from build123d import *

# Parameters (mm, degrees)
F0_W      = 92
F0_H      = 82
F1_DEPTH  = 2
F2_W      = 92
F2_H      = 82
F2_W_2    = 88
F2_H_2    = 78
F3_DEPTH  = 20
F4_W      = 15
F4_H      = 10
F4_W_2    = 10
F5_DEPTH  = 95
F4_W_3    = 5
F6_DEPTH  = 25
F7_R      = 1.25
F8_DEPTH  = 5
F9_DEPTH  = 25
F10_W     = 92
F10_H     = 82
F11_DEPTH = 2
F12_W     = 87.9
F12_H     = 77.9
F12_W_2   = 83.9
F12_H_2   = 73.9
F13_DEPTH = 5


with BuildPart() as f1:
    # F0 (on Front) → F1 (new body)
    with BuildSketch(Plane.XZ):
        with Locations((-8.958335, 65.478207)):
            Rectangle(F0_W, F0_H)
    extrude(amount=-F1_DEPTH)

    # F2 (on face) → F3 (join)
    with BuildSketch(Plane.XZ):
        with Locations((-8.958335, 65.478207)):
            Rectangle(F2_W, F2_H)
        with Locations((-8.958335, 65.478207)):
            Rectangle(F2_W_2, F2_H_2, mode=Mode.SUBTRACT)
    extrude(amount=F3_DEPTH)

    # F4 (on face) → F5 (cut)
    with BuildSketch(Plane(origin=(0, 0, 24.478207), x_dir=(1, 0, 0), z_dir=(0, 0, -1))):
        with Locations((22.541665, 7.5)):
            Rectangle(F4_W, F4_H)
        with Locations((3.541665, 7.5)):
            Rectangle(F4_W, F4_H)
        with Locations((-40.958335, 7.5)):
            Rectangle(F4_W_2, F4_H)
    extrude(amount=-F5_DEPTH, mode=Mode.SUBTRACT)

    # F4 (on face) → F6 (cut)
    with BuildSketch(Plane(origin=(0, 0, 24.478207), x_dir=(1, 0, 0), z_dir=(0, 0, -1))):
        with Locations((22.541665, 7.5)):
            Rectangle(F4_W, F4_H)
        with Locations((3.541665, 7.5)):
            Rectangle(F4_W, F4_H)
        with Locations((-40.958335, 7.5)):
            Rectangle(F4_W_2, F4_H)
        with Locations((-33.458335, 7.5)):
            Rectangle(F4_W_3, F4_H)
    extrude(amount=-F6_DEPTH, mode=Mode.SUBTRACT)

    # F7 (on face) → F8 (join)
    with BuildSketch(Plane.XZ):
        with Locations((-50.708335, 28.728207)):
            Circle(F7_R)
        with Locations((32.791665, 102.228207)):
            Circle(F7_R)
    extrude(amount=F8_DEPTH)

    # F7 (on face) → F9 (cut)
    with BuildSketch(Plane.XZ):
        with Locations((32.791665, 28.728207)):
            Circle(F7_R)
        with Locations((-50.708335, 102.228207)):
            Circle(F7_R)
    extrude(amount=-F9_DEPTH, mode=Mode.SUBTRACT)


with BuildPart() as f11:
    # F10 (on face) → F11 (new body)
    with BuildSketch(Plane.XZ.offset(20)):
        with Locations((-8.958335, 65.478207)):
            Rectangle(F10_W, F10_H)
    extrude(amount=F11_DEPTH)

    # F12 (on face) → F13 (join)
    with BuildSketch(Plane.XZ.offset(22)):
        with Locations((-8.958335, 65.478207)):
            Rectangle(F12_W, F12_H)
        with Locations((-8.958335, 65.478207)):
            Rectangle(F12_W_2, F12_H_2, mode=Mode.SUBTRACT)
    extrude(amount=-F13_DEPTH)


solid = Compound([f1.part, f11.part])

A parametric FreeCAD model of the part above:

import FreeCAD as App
import Part
import Sketcher
from FreeCAD import Vector


def add_polygon(sketch, points):
    """Adds a closed chain of lines whose ends are joined by coincident constraints."""
    first, n = sketch.GeometryCount, len(points)
    for a, b in zip(points, points[1:] + points[:1]):
        sketch.addGeometry(Part.LineSegment(App.Vector(*a, 0), App.Vector(*b, 0)), False)
    for i in range(n):
        sketch.addConstraint(Sketcher.Constraint("Coincident", first + i, 2, first + (i + 1) % n, 1))

doc = App.newDocument("Part")
params = doc.addObject("Spreadsheet::Sheet", "Params")
for row, (alias, value) in enumerate([
    ("sketch1_width", "92 mm"),
    ("sketch1_height", "82 mm"),
    ("pad1_length", "2 mm"),
    ("sketch2_width", "92 mm"),
    ("sketch2_width2", "88 mm"),
    ("sketch2_height", "82 mm"),
    ("sketch2_height2", "78 mm"),
    ("pad2_length", "20 mm"),
    ("sketch3_width", "15 mm"),
    ("sketch3_width2", "10 mm"),
    ("pocket1_length", "95 mm"),
    ("sketch4_width", "15 mm"),
    ("sketch4_height", "10 mm"),
    ("pocket2_length", "25 mm"),
    ("sketch5_diameter", "2.5 mm"),
    ("pad3_length", "5 mm"),
    ("sketch6_diameter", "2.5 mm"),
    ("pocket3_length", "25 mm"),
    ("sketch7_width", "92 mm"),
    ("sketch7_height", "82 mm"),
    ("pad4_length", "2 mm"),
    ("sketch8_width", "87.9 mm"),
    ("sketch8_width2", "83.9 mm"),
    ("sketch8_height", "77.9 mm"),
    ("sketch8_height2", "73.9 mm"),
    ("pad5_length", "5 mm"),
], start=1):
    params.set(f"A{row}", alias)
    params.set(f"B{row}", "=" + value)
    params.setAlias(f"B{row}", alias)

body = doc.addObject("PartDesign::Body", "Body")

sketch1 = body.newObject("Sketcher::SketchObject", "Sketch")
sketch1.AttachmentSupport = (doc.getObject("XZ_Plane"), [""])
sketch1.MapMode = "FlatFace"
add_polygon(sketch1, [(-54.958335, 106.478207), (-54.958335, 24.478207), (37.041665, 24.478207), (37.041665, 106.478207)])
sketch1.addConstraint(Sketcher.Constraint("Vertical", 0))
sketch1.addConstraint(Sketcher.Constraint("Horizontal", 1))
sketch1.addConstraint(Sketcher.Constraint("Vertical", 2))
sketch1.addConstraint(Sketcher.Constraint("Horizontal", 3))
sketch1.addConstraint(Sketcher.Constraint("DistanceX", 1, 1, 1, 2, 92.0))
sketch1.addConstraint(Sketcher.Constraint("DistanceY", 0, 2, 0, 1, 82.0))
sketch1.addConstraint(Sketcher.Constraint("DistanceX", 0, 2, -1, 1, 54.958335))
sketch1.addConstraint(Sketcher.Constraint("DistanceY", -1, 1, 0, 2, 24.478207))
sketch1.setExpression("Constraints[8]", "Params.sketch1_width")
sketch1.setExpression("Constraints[9]", "Params.sketch1_height")
pad1 = body.newObject("PartDesign::Pad", "Pad")
pad1.Profile = sketch1
pad1.setExpression("Length", "Params.pad1_length")
pad1.Reversed = True

sketch2 = body.newObject("Sketcher::SketchObject", "Sketch001")
sketch2.AttachmentSupport = (doc.getObject("XZ_Plane"), [""])
sketch2.MapMode = "FlatFace"
add_polygon(sketch2, [(-54.958335, 106.478207), (-54.958335, 24.478207), (37.041665, 24.478207), (37.041665, 106.478207)])
add_polygon(sketch2, [(35.041665, 26.478207), (-52.958335, 26.478207), (-52.958335, 104.478207), (35.041665, 104.478207)])
sketch2.addConstraint(Sketcher.Constraint("Vertical", 0))
sketch2.addConstraint(Sketcher.Constraint("Horizontal", 1))
sketch2.addConstraint(Sketcher.Constraint("Vertical", 2))
sketch2.addConstraint(Sketcher.Constraint("Horizontal", 3))
sketch2.addConstraint(Sketcher.Constraint("Horizontal", 4))
sketch2.addConstraint(Sketcher.Constraint("Vertical", 5))
sketch2.addConstraint(Sketcher.Constraint("Horizontal", 6))
sketch2.addConstraint(Sketcher.Constraint("Vertical", 7))
sketch2.addConstraint(Sketcher.Constraint("DistanceX", 1, 1, 1, 2, 92.0))
sketch2.addConstraint(Sketcher.Constraint("DistanceX", 4, 2, 4, 1, 88.0))
sketch2.addConstraint(Sketcher.Constraint("DistanceY", 0, 2, 0, 1, 82.0))
sketch2.addConstraint(Sketcher.Constraint("DistanceY", 5, 1, 5, 2, 78.0))
sketch2.addConstraint(Sketcher.Constraint("DistanceX", 0, 2, 4, 2, 2.0))
sketch2.addConstraint(Sketcher.Constraint("DistanceY", 0, 2, 4, 2, 2.0))
sketch2.addConstraint(Sketcher.Constraint("DistanceX", 0, 2, -1, 1, 54.958335))
sketch2.addConstraint(Sketcher.Constraint("DistanceY", -1, 1, 0, 2, 24.478207))
sketch2.setExpression("Constraints[16]", "Params.sketch2_width")
sketch2.setExpression("Constraints[17]", "Params.sketch2_width2")
sketch2.setExpression("Constraints[18]", "Params.sketch2_height")
sketch2.setExpression("Constraints[19]", "Params.sketch2_height2")
pad2 = body.newObject("PartDesign::Pad", "Pad001")
pad2.Profile = sketch2
pad2.setExpression("Length", "Params.pad2_length")

sketch3 = body.newObject("Sketcher::SketchObject", "Sketch002")
sketch3.AttachmentSupport = (doc.getObject("XY_Plane"), [""])
sketch3.MapMode = "FlatFace"
sketch3.AttachmentOffset = App.Placement(Vector(0, 0, 24.478207), App.Rotation())
add_polygon(sketch3, [(15.041665, -12.5), (15.041665, -2.5), (30.041665, -2.5), (30.041665, -12.5)])
add_polygon(sketch3, [(-3.958335, -12.5), (-3.958335, -2.5), (11.041665, -2.5), (11.041665, -12.5)])
add_polygon(sketch3, [(-45.958335, -12.5), (-45.958335, -2.5), (-35.958335, -2.5), (-35.958335, -12.5)])
sketch3.addConstraint(Sketcher.Constraint("Vertical", 0))
sketch3.addConstraint(Sketcher.Constraint("Horizontal", 1))
sketch3.addConstraint(Sketcher.Constraint("Vertical", 2))
sketch3.addConstraint(Sketcher.Constraint("Horizontal", 3))
sketch3.addConstraint(Sketcher.Constraint("Vertical", 4))
sketch3.addConstraint(Sketcher.Constraint("Horizontal", 5))
sketch3.addConstraint(Sketcher.Constraint("Vertical", 6))
sketch3.addConstraint(Sketcher.Constraint("Horizontal", 7))
sketch3.addConstraint(Sketcher.Constraint("Vertical", 8))
sketch3.addConstraint(Sketcher.Constraint("Horizontal", 9))
sketch3.addConstraint(Sketcher.Constraint("Vertical", 10))
sketch3.addConstraint(Sketcher.Constraint("Horizontal", 11))
sketch3.addConstraint(Sketcher.Constraint("Horizontal", 1, 2, 4, 2))
sketch3.addConstraint(Sketcher.Constraint("Horizontal", 3, 2, 6, 2))
sketch3.addConstraint(Sketcher.Constraint("Horizontal", 5, 2, 8, 2))
sketch3.addConstraint(Sketcher.Constraint("Horizontal", 7, 2, 10, 2))
sketch3.addConstraint(Sketcher.Constraint("Equal", 3, 5))
sketch3.addConstraint(Sketcher.Constraint("Equal", 11, 0))
sketch3.addConstraint(Sketcher.Constraint("DistanceX", 1, 1, 1, 2, 15.0))
sketch3.addConstraint(Sketcher.Constraint("DistanceX", 9, 1, 9, 2, 10.0))
sketch3.addConstraint(Sketcher.Constraint("DistanceX", 4, 2, 0, 2, 19.0))
sketch3.addConstraint(Sketcher.Constraint("DistanceX", 8, 2, 4, 2, 42.0))
sketch3.addConstraint(Sketcher.Constraint("DistanceY", 0, 2, -1, 1, 2.5))
sketch3.addConstraint(Sketcher.Constraint("DistanceX", -1, 1, 0, 2, 15.041665))
sketch3.setExpression("Constraints[30]", "Params.sketch3_width")
sketch3.setExpression("Constraints[31]", "Params.sketch3_width2")
pocket1 = body.newObject("PartDesign::Pocket", "Pocket")
pocket1.Profile = sketch3
pocket1.setExpression("Length", "Params.pocket1_length")
pocket1.Reversed = True

sketch4 = body.newObject("Sketcher::SketchObject", "Sketch003")
sketch4.AttachmentSupport = (doc.getObject("XY_Plane"), [""])
sketch4.MapMode = "FlatFace"
sketch4.AttachmentOffset = App.Placement(Vector(0, 0, 24.478207), App.Rotation())
add_polygon(sketch4, [(15.041665, -12.5), (15.041665, -2.5), (30.041665, -2.5), (30.041665, -12.5)])
add_polygon(sketch4, [(-3.958335, -12.5), (-3.958335, -2.5), (11.041665, -2.5), (11.041665, -12.5)])
add_polygon(sketch4, [(-45.958335, -12.5), (-45.958335, -2.5), (-30.958335, -2.5), (-30.958335, -12.5)])
sketch4.addConstraint(Sketcher.Constraint("Vertical", 0))
sketch4.addConstraint(Sketcher.Constraint("Horizontal", 1))
sketch4.addConstraint(Sketcher.Constraint("Vertical", 2))
sketch4.addConstraint(Sketcher.Constraint("Horizontal", 3))
sketch4.addConstraint(Sketcher.Constraint("Vertical", 4))
sketch4.addConstraint(Sketcher.Constraint("Horizontal", 5))
sketch4.addConstraint(Sketcher.Constraint("Vertical", 6))
sketch4.addConstraint(Sketcher.Constraint("Horizontal", 7))
sketch4.addConstraint(Sketcher.Constraint("Vertical", 8))
sketch4.addConstraint(Sketcher.Constraint("Horizontal", 9))
sketch4.addConstraint(Sketcher.Constraint("Vertical", 10))
sketch4.addConstraint(Sketcher.Constraint("Horizontal", 11))
sketch4.addConstraint(Sketcher.Constraint("Horizontal", 1, 2, 4, 2))
sketch4.addConstraint(Sketcher.Constraint("Horizontal", 3, 2, 6, 2))
sketch4.addConstraint(Sketcher.Constraint("Horizontal", 5, 2, 8, 2))
sketch4.addConstraint(Sketcher.Constraint("Horizontal", 7, 2, 10, 2))
sketch4.addConstraint(Sketcher.Constraint("Equal", 3, 5))
sketch4.addConstraint(Sketcher.Constraint("Equal", 7, 9))
sketch4.addConstraint(Sketcher.Constraint("DistanceX", 1, 1, 1, 2, 15.0))
sketch4.addConstraint(Sketcher.Constraint("DistanceY", 0, 1, 0, 2, 10.0))
sketch4.addConstraint(Sketcher.Constraint("DistanceX", 4, 2, 0, 2, 19.0))
sketch4.addConstraint(Sketcher.Constraint("DistanceX", 8, 2, 4, 2, 42.0))
sketch4.addConstraint(Sketcher.Constraint("DistanceY", 0, 2, -1, 1, 2.5))
sketch4.addConstraint(Sketcher.Constraint("DistanceX", -1, 1, 0, 2, 15.041665))
sketch4.setExpression("Constraints[30]", "Params.sketch4_width")
sketch4.setExpression("Constraints[31]", "Params.sketch4_height")
pocket2 = body.newObject("PartDesign::Pocket", "Pocket001")
pocket2.Profile = sketch4
pocket2.setExpression("Length", "Params.pocket2_length")
pocket2.Reversed = True

sketch5 = body.newObject("Sketcher::SketchObject", "Sketch004")
sketch5.AttachmentSupport = (doc.getObject("XZ_Plane"), [""])
sketch5.MapMode = "FlatFace"
sketch5.addGeometry(Part.Circle(Vector(-50.708335, 28.728207, 0), Vector(0, 0, 1), 1.25), False)
sketch5.addGeometry(Part.Circle(Vector(32.791665, 102.228207, 0), Vector(0, 0, 1), 1.25), False)
sketch5.addConstraint(Sketcher.Constraint("Equal", 0, 1))
sketch5.addConstraint(Sketcher.Constraint("Diameter", 0, 2.5))
sketch5.addConstraint(Sketcher.Constraint("DistanceX", 0, 3, 1, 3, 83.5))
sketch5.addConstraint(Sketcher.Constraint("DistanceY", 0, 3, 1, 3, 73.5))
sketch5.addConstraint(Sketcher.Constraint("DistanceX", 0, 3, -1, 1, 50.708335))
sketch5.addConstraint(Sketcher.Constraint("DistanceY", -1, 1, 0, 3, 28.728207))
sketch5.setExpression("Constraints[1]", "Params.sketch5_diameter")
pad3 = body.newObject("PartDesign::Pad", "Pad002")
pad3.Profile = sketch5
pad3.setExpression("Length", "Params.pad3_length")

sketch6 = body.newObject("Sketcher::SketchObject", "Sketch005")
sketch6.AttachmentSupport = (doc.getObject("XZ_Plane"), [""])
sketch6.MapMode = "FlatFace"
sketch6.addGeometry(Part.Circle(Vector(32.791665, 28.728207, 0), Vector(0, 0, 1), 1.25), False)
sketch6.addGeometry(Part.Circle(Vector(-50.708335, 102.228207, 0), Vector(0, 0, 1), 1.25), False)
sketch6.addConstraint(Sketcher.Constraint("Equal", 0, 1))
sketch6.addConstraint(Sketcher.Constraint("Diameter", 0, 2.5))
sketch6.addConstraint(Sketcher.Constraint("DistanceX", 1, 3, 0, 3, 83.5))
sketch6.addConstraint(Sketcher.Constraint("DistanceY", 0, 3, 1, 3, 73.5))
sketch6.addConstraint(Sketcher.Constraint("DistanceX", -1, 1, 0, 3, 32.791665))
sketch6.addConstraint(Sketcher.Constraint("DistanceY", -1, 1, 0, 3, 28.728207))
sketch6.setExpression("Constraints[1]", "Params.sketch6_diameter")
pocket3 = body.newObject("PartDesign::Pocket", "Pocket002")
pocket3.Profile = sketch6
pocket3.setExpression("Length", "Params.pocket3_length")
body2 = doc.addObject("PartDesign::Body", "Body001")

sketch7 = body2.newObject("Sketcher::SketchObject", "Sketch006")
sketch7.AttachmentSupport = (doc.getObject("XZ_Plane001"), [""])
sketch7.MapMode = "FlatFace"
sketch7.AttachmentOffset = App.Placement(Vector(0, 0, 20), App.Rotation())
add_polygon(sketch7, [(-54.958335, 106.478207), (-54.958335, 24.478207), (37.041665, 24.478207), (37.041665, 106.478207)])
sketch7.addConstraint(Sketcher.Constraint("Vertical", 0))
sketch7.addConstraint(Sketcher.Constraint("Horizontal", 1))
sketch7.addConstraint(Sketcher.Constraint("Vertical", 2))
sketch7.addConstraint(Sketcher.Constraint("Horizontal", 3))
sketch7.addConstraint(Sketcher.Constraint("DistanceX", 1, 1, 1, 2, 92.0))
sketch7.addConstraint(Sketcher.Constraint("DistanceY", 0, 2, 0, 1, 82.0))
sketch7.addConstraint(Sketcher.Constraint("DistanceX", 0, 2, -1, 1, 54.958335))
sketch7.addConstraint(Sketcher.Constraint("DistanceY", -1, 1, 0, 2, 24.478207))
sketch7.setExpression("Constraints[8]", "Params.sketch7_width")
sketch7.setExpression("Constraints[9]", "Params.sketch7_height")
pad4 = body2.newObject("PartDesign::Pad", "Pad003")
pad4.Profile = sketch7
pad4.setExpression("Length", "Params.pad4_length")

sketch8 = body2.newObject("Sketcher::SketchObject", "Sketch007")
sketch8.AttachmentSupport = (doc.getObject("XZ_Plane001"), [""])
sketch8.MapMode = "FlatFace"
sketch8.AttachmentOffset = App.Placement(Vector(0, 0, 22), App.Rotation())
add_polygon(sketch8, [(-52.908335, 104.428207), (-52.908335, 26.528207), (34.991665, 26.528207), (34.991665, 104.428207)])
add_polygon(sketch8, [(32.991665, 28.528207), (-50.908335, 28.528207), (-50.908335, 102.428207), (32.991665, 102.428207)])
sketch8.addConstraint(Sketcher.Constraint("Vertical", 0))
sketch8.addConstraint(Sketcher.Constraint("Horizontal", 1))
sketch8.addConstraint(Sketcher.Constraint("Vertical", 2))
sketch8.addConstraint(Sketcher.Constraint("Horizontal", 3))
sketch8.addConstraint(Sketcher.Constraint("Horizontal", 4))
sketch8.addConstraint(Sketcher.Constraint("Vertical", 5))
sketch8.addConstraint(Sketcher.Constraint("Horizontal", 6))
sketch8.addConstraint(Sketcher.Constraint("Vertical", 7))
sketch8.addConstraint(Sketcher.Constraint("DistanceX", 1, 1, 1, 2, 87.9))
sketch8.addConstraint(Sketcher.Constraint("DistanceX", 4, 2, 4, 1, 83.9))
sketch8.addConstraint(Sketcher.Constraint("DistanceY", 0, 2, 0, 1, 77.9))
sketch8.addConstraint(Sketcher.Constraint("DistanceY", 5, 1, 5, 2, 73.9))
sketch8.addConstraint(Sketcher.Constraint("DistanceX", 0, 2, 4, 2, 2.0))
sketch8.addConstraint(Sketcher.Constraint("DistanceY", 0, 2, 4, 2, 2.0))
sketch8.addConstraint(Sketcher.Constraint("DistanceX", 0, 2, -1, 1, 52.908335))
sketch8.addConstraint(Sketcher.Constraint("DistanceY", -1, 1, 0, 2, 26.528207))
sketch8.setExpression("Constraints[16]", "Params.sketch8_width")
sketch8.setExpression("Constraints[17]", "Params.sketch8_width2")
sketch8.setExpression("Constraints[18]", "Params.sketch8_height")
sketch8.setExpression("Constraints[19]", "Params.sketch8_height2")
pad5 = body2.newObject("PartDesign::Pad", "Pad004")
pad5.Profile = sketch8
pad5.setExpression("Length", "Params.pad5_length")
pad5.Reversed = True

doc.recompute()
